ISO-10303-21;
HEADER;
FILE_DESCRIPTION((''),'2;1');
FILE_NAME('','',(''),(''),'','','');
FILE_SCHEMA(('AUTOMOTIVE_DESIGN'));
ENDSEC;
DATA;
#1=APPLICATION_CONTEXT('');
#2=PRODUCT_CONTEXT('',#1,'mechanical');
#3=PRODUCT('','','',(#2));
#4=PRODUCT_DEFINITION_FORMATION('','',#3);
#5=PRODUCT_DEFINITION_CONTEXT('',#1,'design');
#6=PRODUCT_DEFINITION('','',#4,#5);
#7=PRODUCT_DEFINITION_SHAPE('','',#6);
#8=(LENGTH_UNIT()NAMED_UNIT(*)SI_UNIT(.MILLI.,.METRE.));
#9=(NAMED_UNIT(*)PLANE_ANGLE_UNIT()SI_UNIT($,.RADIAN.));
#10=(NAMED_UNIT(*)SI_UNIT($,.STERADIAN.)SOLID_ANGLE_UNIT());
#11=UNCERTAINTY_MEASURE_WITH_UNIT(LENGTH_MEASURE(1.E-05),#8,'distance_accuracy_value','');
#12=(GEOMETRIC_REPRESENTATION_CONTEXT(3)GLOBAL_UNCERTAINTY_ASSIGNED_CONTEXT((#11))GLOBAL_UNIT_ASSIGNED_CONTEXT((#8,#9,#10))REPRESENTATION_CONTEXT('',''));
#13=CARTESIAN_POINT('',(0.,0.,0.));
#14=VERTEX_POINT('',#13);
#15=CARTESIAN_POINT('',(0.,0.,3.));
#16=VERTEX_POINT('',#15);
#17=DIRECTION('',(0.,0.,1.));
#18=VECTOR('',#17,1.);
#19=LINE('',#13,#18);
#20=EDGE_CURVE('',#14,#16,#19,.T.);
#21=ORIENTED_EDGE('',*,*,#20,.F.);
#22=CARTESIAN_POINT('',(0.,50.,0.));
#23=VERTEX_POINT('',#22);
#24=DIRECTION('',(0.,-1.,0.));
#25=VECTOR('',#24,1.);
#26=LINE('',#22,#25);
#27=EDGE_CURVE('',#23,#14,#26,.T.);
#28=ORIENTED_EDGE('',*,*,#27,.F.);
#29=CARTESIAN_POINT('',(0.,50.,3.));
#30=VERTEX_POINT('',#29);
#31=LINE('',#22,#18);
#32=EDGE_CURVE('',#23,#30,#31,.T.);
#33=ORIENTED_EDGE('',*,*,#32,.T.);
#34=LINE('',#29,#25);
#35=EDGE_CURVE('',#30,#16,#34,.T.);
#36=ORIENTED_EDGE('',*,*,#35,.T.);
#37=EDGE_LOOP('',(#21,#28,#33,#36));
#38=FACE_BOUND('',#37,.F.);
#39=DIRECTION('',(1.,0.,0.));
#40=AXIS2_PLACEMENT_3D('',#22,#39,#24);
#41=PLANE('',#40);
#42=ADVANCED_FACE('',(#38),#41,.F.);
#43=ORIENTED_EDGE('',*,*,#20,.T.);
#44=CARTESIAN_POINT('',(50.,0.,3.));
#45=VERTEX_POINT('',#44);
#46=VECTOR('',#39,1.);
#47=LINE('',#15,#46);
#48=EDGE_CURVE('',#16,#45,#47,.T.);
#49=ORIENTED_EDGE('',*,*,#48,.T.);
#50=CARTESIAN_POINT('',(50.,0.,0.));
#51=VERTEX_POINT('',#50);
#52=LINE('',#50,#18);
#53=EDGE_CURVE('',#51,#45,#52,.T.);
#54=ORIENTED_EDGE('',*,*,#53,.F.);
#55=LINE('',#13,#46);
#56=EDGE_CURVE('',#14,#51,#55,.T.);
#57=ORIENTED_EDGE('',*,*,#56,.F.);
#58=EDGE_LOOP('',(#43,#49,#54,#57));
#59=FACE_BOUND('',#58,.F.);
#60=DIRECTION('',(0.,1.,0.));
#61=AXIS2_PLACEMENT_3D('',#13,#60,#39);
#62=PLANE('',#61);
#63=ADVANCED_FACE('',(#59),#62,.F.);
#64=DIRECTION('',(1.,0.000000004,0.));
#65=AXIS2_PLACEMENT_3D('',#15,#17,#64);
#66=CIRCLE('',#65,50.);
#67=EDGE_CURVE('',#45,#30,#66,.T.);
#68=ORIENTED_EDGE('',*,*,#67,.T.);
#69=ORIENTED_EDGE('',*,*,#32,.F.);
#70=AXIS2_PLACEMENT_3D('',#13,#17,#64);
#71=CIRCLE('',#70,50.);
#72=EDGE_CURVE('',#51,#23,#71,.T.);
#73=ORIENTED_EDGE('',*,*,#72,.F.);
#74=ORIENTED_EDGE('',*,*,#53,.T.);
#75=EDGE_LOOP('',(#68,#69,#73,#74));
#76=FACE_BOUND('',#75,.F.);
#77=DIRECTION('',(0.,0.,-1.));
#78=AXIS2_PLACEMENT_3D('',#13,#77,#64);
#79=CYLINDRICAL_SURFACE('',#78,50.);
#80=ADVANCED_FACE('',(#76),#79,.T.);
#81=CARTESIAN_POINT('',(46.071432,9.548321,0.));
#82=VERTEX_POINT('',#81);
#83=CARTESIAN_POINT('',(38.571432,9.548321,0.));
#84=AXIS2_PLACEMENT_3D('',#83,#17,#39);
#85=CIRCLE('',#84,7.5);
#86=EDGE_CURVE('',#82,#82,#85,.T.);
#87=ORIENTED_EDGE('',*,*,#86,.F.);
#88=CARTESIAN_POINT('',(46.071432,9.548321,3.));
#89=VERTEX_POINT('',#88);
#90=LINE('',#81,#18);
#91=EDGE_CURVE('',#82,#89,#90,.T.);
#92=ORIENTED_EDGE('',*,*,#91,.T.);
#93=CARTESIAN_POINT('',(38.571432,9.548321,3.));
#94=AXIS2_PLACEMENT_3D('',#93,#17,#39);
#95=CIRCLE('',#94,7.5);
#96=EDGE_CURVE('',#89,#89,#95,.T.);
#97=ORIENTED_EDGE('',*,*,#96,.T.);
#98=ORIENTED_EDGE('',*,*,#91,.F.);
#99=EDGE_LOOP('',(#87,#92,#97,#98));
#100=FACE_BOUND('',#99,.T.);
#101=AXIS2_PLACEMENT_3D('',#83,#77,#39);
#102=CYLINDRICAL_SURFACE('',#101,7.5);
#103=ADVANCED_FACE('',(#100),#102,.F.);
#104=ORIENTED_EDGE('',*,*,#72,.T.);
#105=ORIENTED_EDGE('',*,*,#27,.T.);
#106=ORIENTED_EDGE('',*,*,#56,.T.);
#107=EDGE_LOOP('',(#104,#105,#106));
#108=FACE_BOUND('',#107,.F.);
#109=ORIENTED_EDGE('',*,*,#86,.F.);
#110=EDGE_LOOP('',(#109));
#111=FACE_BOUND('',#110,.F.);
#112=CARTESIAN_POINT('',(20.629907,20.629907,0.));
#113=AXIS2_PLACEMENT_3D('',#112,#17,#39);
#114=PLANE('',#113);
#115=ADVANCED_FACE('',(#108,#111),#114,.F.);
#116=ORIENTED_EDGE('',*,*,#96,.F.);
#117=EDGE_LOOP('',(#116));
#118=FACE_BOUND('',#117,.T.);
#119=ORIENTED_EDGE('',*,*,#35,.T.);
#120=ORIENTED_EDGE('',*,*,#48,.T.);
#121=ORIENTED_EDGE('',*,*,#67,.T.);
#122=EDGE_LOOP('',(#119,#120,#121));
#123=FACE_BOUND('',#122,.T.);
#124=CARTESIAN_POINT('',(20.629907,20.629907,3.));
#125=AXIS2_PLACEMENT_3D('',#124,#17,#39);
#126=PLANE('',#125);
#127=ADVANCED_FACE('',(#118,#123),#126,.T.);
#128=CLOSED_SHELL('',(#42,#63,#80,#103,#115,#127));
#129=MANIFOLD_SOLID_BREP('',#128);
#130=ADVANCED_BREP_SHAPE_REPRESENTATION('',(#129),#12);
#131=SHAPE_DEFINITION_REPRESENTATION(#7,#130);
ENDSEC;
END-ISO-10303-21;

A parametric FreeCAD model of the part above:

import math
import FreeCAD as App
import Part
import Sketcher
Q = App.Units.Quantity

doc = App.newDocument("Part")
params = doc.addObject("Spreadsheet::Sheet", "Params")
for row, (alias, value) in enumerate([
    ("sketch1_diameter", "15 mm"),
    ("sketch1_radius", "50 mm"),
    ("pad1_length", "3 mm"),
], start=1):
    params.set(f"A{row}", alias)
    params.set(f"B{row}", "=" + value)
    params.setAlias(f"B{row}", alias)

body = doc.addObject("PartDesign::Body", "Body")

# Sketch on XY plane
sketch1 = body.newObject("Sketcher::SketchObject", "Sketch")
sketch1.AttachmentSupport = (doc.getObject("XY_Plane"), [""])
sketch1.MapMode = "FlatFace"
sketch1.addGeometry([
    Part.LineSegment(App.Vector(0, 50, 0), App.Vector(0, 0, 0)),
    Part.LineSegment(App.Vector(0, 0, 0), App.Vector(50, 0, 0)),
    Part.ArcOfCircle(Part.Circle(App.Vector(0, 0, 0), App.Vector(0, 0, 1), 50), math.radians(0), math.radians(90)),
    Part.Circle(App.Vector(39, 10, 0), App.Vector(0, 0, 1), 8),
], False)
sketch1.addConstraint([
    Sketcher.Constraint("Coincident", 0, 2, 1, 1),
    Sketcher.Constraint("Coincident", 1, 2, 2, 1),
    Sketcher.Constraint("Coincident", 2, 2, 0, 1),
    Sketcher.Constraint("Vertical", 0),
    Sketcher.Constraint("Horizontal", 1),
    Sketcher.Constraint("Coincident", 2, 3, -1, 1),
    Sketcher.Constraint("Coincident", 0, 2, -1, 1),
    Sketcher.Constraint("Diameter", 3, Q("15 mm")),
    Sketcher.Constraint("Radius", 2, Q("50 mm")),
    Sketcher.Constraint("DistanceY", -1, 1, 3, 3, Q("9.548321 mm")),
    Sketcher.Constraint("DistanceX", -1, 1, 3, 3, Q("38.571432 mm")),
])
sketch1.setExpression("Constraints[7]", "Params.sketch1_diameter")
sketch1.setExpression("Constraints[8]", "Params.sketch1_radius")
pad1 = body.newObject("PartDesign::Pad", "Pad")
pad1.Profile = sketch1
pad1.setExpression("Length", "Params.pad1_length")

doc.recompute()
